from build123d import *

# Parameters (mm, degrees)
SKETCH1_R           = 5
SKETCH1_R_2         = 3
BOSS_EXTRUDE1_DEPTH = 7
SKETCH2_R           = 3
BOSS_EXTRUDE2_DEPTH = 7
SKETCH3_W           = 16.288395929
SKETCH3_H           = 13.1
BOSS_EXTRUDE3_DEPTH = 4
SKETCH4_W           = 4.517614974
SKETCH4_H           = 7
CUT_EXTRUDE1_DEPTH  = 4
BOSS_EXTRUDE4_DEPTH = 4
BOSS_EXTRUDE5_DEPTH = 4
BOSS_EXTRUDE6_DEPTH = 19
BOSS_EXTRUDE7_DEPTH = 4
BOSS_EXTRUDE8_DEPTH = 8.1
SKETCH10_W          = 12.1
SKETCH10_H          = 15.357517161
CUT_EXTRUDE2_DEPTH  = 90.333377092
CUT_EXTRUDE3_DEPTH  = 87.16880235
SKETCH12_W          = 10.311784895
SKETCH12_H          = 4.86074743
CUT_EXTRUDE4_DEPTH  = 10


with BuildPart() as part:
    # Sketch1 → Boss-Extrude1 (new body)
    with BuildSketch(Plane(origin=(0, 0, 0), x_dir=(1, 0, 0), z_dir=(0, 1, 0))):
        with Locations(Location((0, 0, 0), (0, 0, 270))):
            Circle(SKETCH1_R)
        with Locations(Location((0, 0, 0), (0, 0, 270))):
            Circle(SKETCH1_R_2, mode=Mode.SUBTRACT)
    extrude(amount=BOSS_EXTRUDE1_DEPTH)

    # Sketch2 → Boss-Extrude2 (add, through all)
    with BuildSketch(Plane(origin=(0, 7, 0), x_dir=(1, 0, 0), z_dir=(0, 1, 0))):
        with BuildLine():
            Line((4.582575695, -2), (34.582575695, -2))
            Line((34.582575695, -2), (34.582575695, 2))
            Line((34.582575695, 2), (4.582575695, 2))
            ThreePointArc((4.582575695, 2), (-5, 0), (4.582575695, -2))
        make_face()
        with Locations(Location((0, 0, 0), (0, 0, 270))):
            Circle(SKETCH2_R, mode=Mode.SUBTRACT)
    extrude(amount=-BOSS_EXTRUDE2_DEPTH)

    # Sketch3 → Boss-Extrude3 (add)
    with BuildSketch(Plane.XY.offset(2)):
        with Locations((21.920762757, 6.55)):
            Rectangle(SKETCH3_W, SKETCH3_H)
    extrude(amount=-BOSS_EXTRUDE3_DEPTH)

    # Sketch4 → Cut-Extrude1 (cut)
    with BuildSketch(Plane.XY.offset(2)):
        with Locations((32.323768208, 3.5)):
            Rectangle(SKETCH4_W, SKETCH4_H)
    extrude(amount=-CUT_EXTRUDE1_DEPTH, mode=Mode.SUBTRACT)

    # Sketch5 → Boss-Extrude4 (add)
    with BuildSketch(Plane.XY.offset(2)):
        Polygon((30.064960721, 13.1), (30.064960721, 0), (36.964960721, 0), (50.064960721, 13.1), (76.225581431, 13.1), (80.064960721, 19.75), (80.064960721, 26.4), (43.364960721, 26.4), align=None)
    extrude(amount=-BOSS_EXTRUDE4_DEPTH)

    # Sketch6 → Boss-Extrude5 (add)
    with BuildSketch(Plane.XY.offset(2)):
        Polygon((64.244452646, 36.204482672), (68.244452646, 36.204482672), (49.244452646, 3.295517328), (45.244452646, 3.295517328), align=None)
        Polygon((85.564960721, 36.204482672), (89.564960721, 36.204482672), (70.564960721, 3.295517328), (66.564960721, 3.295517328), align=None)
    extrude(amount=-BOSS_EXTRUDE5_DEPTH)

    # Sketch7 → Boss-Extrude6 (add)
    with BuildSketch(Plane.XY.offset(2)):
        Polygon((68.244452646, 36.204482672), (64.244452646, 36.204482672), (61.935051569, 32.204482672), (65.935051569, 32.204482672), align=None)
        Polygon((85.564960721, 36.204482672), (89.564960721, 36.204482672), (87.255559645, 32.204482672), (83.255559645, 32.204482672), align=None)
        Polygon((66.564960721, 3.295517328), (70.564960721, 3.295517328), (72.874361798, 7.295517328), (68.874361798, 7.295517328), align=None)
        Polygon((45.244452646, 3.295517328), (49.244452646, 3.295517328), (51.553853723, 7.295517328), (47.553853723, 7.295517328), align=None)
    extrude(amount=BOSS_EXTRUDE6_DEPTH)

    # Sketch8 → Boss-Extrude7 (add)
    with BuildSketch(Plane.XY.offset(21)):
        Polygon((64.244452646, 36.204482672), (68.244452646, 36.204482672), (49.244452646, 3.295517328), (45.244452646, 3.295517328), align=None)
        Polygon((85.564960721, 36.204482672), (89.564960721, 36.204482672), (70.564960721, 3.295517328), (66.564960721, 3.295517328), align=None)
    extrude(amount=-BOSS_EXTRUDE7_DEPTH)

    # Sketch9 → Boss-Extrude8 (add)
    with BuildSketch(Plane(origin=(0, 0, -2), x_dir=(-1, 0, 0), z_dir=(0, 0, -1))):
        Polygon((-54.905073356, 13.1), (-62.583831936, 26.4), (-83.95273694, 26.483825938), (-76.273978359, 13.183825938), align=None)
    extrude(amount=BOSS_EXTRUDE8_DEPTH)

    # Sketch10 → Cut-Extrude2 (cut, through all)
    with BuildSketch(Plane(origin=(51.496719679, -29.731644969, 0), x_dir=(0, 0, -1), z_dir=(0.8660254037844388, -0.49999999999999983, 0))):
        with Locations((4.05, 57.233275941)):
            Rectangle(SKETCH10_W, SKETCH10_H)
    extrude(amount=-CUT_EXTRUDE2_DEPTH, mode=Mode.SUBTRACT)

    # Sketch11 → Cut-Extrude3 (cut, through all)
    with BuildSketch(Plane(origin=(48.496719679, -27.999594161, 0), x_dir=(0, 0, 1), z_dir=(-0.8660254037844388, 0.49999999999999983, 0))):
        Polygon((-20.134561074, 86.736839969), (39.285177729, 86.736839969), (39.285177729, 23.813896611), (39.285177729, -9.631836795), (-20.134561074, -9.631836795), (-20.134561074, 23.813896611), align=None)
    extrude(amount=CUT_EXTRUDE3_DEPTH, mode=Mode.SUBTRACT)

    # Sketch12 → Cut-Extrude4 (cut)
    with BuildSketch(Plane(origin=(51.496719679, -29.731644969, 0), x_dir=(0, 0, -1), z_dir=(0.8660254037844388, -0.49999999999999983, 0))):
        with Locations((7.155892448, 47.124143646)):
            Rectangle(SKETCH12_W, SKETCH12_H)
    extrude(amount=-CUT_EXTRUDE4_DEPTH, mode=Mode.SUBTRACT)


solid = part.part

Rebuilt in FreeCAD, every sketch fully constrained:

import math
import FreeCAD as App
import Part
import Sketcher

V = App.Vector
Q = App.Units.Quantity


def add_polygon(sketch, points):
    """Adds a closed chain of lines whose ends are joined by coincident constraints."""
    first, n = sketch.GeometryCount, len(points)
    for a, b in zip(points, points[1:] + points[:1]):
        sketch.addGeometry(Part.LineSegment(App.Vector(*a, 0), App.Vector(*b, 0)), False)
    for i in range(n):
        sketch.addConstraint(Sketcher.Constraint("Coincident", first + i, 2, first + (i + 1) % n, 1))

doc = App.newDocument("Part")
body = doc.addObject("PartDesign::Body", "Body")

# Sketch on XZ plane
sketch1 = body.newObject("Sketcher::SketchObject", "Sketch")
sketch1.AttachmentSupport = (doc.getObject("XZ_Plane"), [""])
sketch1.MapMode = "FlatFace"
sketch1.addGeometry([
    Part.Circle(V(0, 0, 0), V(0, 0, 1), 5),
    Part.Circle(V(0, 0, 0), V(0, 0, 1), 3),
], False)
sketch1.addConstraint([
    Sketcher.Constraint("Coincident", 0, 3, -1, 1),
    Sketcher.Constraint("Coincident", 1, 3, -1, 1),
    Sketcher.Constraint("Diameter", 0, Q("10 mm")),
    Sketcher.Constraint("Diameter", 1, Q("6 mm")),
])
pad1 = body.newObject("PartDesign::Pad", "Pad")
pad1.Profile = sketch1
pad1.Length = 7
pad1.Reversed = True

# Sketch on XZ plane
sketch2 = body.newObject("Sketcher::SketchObject", "Sketch001")
sketch2.AttachmentSupport = (doc.getObject("XZ_Plane"), [""])
sketch2.MapMode = "FlatFace"
sketch2.AttachmentOffset = App.Placement(V(0, 0, -7), App.Rotation())
sketch2.addGeometry([
    Part.LineSegment(V(4.6, 2, 0), V(34.6, 2, 0)),  # 0
    Part.LineSegment(V(34.6, 2, 0), V(34.6, -2, 0)),  # 1
    Part.LineSegment(V(34.6, -2, 0), V(4.6, -2, 0)),  # 2
    Part.ArcOfCircle(Part.Circle(V(0, 0, 0), V(0, 0, 1), 5), math.radians(24), math.radians(336)),  # 3
    Part.Circle(V(0, 0, 0), V(0, 0, 1), 3),  # 4
], False)
sketch2.addConstraint([
    Sketcher.Constraint("Coincident", 0, 2, 1, 1),
    Sketcher.Constraint("Coincident", 1, 2, 2, 1),
    Sketcher.Constraint("Coincident", 2, 2, 3, 2),
    Sketcher.Constraint("Coincident", 3, 1, 0, 1),
    Sketcher.Constraint("Horizontal", 0),
    Sketcher.Constraint("Vertical", 1),
    Sketcher.Constraint("Horizontal", 2),
    Sketcher.Constraint("Coincident", 3, 3, -1, 1),
    Sketcher.Constraint("Coincident", 4, 3, -1, 1),
    Sketcher.Constraint("Vertical", 2, 2, 3, 1),
    Sketcher.Constraint("Diameter", 4, Q("6 mm")),
    Sketcher.Constraint("Radius", 3, Q("5 mm")),
    Sketcher.Constraint("DistanceX", 0, 1, 0, 2, Q("30 mm")),
    Sketcher.Constraint("DistanceY", 1, 2, 1, 1, Q("4 mm")),
])
pad2 = body.newObject("PartDesign::Pad", "Pad001")
pad2.Profile = sketch2
pad2.Length = 7

# Sketch on XY plane
sketch3 = body.newObject("Sketcher::SketchObject", "Sketch002")
sketch3.AttachmentSupport = (doc.getObject("XY_Plane"), [""])
sketch3.MapMode = "FlatFace"
sketch3.AttachmentOffset = App.Placement(V(0, 0, 2), App.Rotation())
add_polygon(sketch3, [(14, 13), (14, 0), (30, 0), (30, 13)])  # lines 0-3
sketch3.addConstraint([
    Sketcher.Constraint("Vertical", 0),
    Sketcher.Constraint("Horizontal", 1),
    Sketcher.Constraint("Vertical", 2),
    Sketcher.Constraint("Horizontal", 3),
    Sketcher.Constraint("PointOnObject", 0, 2, -1),
    Sketcher.Constraint("DistanceY", 0, 2, 0, 1, Q("13.1 mm")),
    Sketcher.Constraint("DistanceX", 1, 1, 1, 2, Q("16.288396 mm")),
    Sketcher.Constraint("DistanceX", -1, 1, 1, 2, Q("30.064961 mm")),
])
pad3 = body.newObject("PartDesign::Pad", "Pad002")
pad3.Profile = sketch3
pad3.Length = 4
pad3.Reversed = True

# Sketch on XY plane
sketch4 = body.newObject("Sketcher::SketchObject", "Sketch003")
sketch4.AttachmentSupport = (doc.getObject("XY_Plane"), [""])
sketch4.MapMode = "FlatFace"
sketch4.AttachmentOffset = App.Placement(V(0, 0, 2), App.Rotation())
add_polygon(sketch4, [(30.1, 7), (30.1, 0), (34.6, 0), (34.6, 7)])  # lines 0-3
sketch4.addConstraint([
    Sketcher.Constraint("Vertical", 0),
    Sketcher.Constraint("Horizontal", 1),
    Sketcher.Constraint("Vertical", 2),
    Sketcher.Constraint("Horizontal", 3),
    Sketcher.Constraint("PointOnObject", 0, 2, -1),
    Sketcher.Constraint("DistanceY", 0, 2, 0, 1, Q("7 mm")),
    Sketcher.Constraint("DistanceX", 1, 1, 1, 2, Q("4.517615 mm")),
    Sketcher.Constraint("DistanceX", -1, 1, 0, 2, Q("30.064961 mm")),
])
pocket1 = body.newObject("PartDesign::Pocket", "Pocket")
pocket1.Profile = sketch4
pocket1.Length = 4

# Sketch on XY plane
sketch5 = body.newObject("Sketcher::SketchObject", "Sketch004")
sketch5.AttachmentSupport = (doc.getObject("XY_Plane"), [""])
sketch5.MapMode = "FlatFace"
sketch5.AttachmentOffset = App.Placement(V(0, 0, 2), App.Rotation())
add_polygon(sketch5, [(30, 13), (30, 0), (37, 0), (50, 13), (76, 13), (80, 20), (80, 26), (43, 26)])  # lines 0-7
sketch5.addConstraint([
    Sketcher.Constraint("Vertical", 0),
    Sketcher.Constraint("Horizontal", 1),
    Sketcher.Constraint("Horizontal", 3),
    Sketcher.Constraint("Vertical", 5),
    Sketcher.Constraint("Horizontal", 6),
    Sketcher.Constraint("PointOnObject", 0, 2, -1),
    Sketcher.Constraint("Parallel", 2, 7),
    Sketcher.Constraint("Horizontal", 3, 2, 7, 2),
    Sketcher.Constraint("Angle", 2, Q("45 deg")),
    Sketcher.Constraint("Angle", 4, Q("60 deg")),
    Sketcher.Constraint("DistanceX", 1, 1, 1, 2, Q("6.9 mm")),
    Sketcher.Constraint("DistanceX", 6, 2, 6, 1, Q("36.7 mm")),
    Sketcher.Constraint("DistanceY", 0, 2, 0, 1, Q("13.1 mm")),
    Sketcher.Constraint("DistanceX", 2, 2, 4, 2, Q("30 mm")),
    Sketcher.Constraint("DistanceY", 5, 1, 5, 2, Q("6.65 mm")),
    Sketcher.Constraint("DistanceX", -1, 1, 0, 2, Q("30.064961 mm")),
])
pad4 = body.newObject("PartDesign::Pad", "Pad003")
pad4.Profile = sketch5
pad4.Length = 4
pad4.Reversed = True

# Sketch on XY plane
sketch6 = body.newObject("Sketcher::SketchObject", "Sketch005")
sketch6.AttachmentSupport = (doc.getObject("XY_Plane"), [""])
sketch6.MapMode = "FlatFace"
sketch6.AttachmentOffset = App.Placement(V(0, 0, 2), App.Rotation())
add_polygon(sketch6, [(68.2, 36.2), (64.2, 36.2), (45.2, 3.3), (49.2, 3.3)])  # lines 0-3
add_polygon(sketch6, [(89.6, 36.2), (85.6, 36.2), (66.6, 3.3), (70.6, 3.3)])  # lines 4-7
sketch6.addConstraint([
    Sketcher.Constraint("Horizontal", 0),
    Sketcher.Constraint("Horizontal", 2),
    Sketcher.Constraint("Horizontal", 4),
    Sketcher.Constraint("Horizontal", 6),
    Sketcher.Constraint("Parallel", 1, 3),
    Sketcher.Constraint("Parallel", 3, 5),
    Sketcher.Constraint("Parallel", 5, 7),
    Sketcher.Constraint("Horizontal", 3, 2, 4, 2),
    Sketcher.Constraint("Horizontal", 2, 2, 5, 2),
    Sketcher.Constraint("Equal", 2, 4),
    Sketcher.Constraint("DistanceX", 0, 2, 0, 1, Q("4 mm")),
    Sketcher.Constraint("Angle", 1, Q("-120 deg")),
    Sketcher.Constraint("Distance", 1, Q("38 mm")),
    Sketcher.Constraint("DistanceX", -1, 1, 4, 2, Q("85.564961 mm")),
    Sketcher.Constraint("DistanceX", 3, 2, 4, 2, Q("17.320508 mm")),
    Sketcher.Constraint("DistanceY", -1, 1, 0, 2, Q("36.204483 mm")),
])
pad5 = body.newObject("PartDesign::Pad", "Pad004")
pad5.Profile = sketch6
pad5.Length = 4
pad5.Reversed = True

# Sketch on XY plane
sketch7 = body.newObject("Sketcher::SketchObject", "Sketch006")
sketch7.AttachmentSupport = (doc.getObject("XY_Plane"), [""])
sketch7.MapMode = "FlatFace"
sketch7.AttachmentOffset = App.Placement(V(0, 0, 2), App.Rotation())
add_polygon(sketch7, [(68.2, 36.2), (64.2, 36.2), (61.9, 32.2), (65.9, 32.2)])  # lines 0-3
add_polygon(sketch7, [(89.6, 36.2), (85.6, 36.2), (83.3, 32.2), (87.3, 32.2)])  # lines 4-7
add_polygon(sketch7, [(66.6, 3.3), (70.6, 3.3), (72.9, 7.3), (68.9, 7.3)])  # lines 8-11
add_polygon(sketch7, [(45.2, 3.3), (49.2, 3.3), (51.6, 7.3), (47.6, 7.3)])  # lines 12-15
sketch7.addConstraint([
    Sketcher.Constraint("Horizontal", 0),
    Sketcher.Constraint("Horizontal", 2),
    Sketcher.Constraint("Horizontal", 4),
    Sketcher.Constraint("Horizontal", 6),
    Sketcher.Constraint("Horizontal", 8),
    Sketcher.Constraint("Horizontal", 10),
    Sketcher.Constraint("Horizontal", 12),
    Sketcher.Constraint("Horizontal", 14),
    Sketcher.Constraint("Parallel", 1, 3),
    Sketcher.Constraint("Parallel", 3, 5),
    Sketcher.Constraint("Parallel", 5, 7),
    Sketcher.Constraint("Parallel", 7, 9),
    Sketcher.Constraint("Parallel", 9, 11),
    Sketcher.Constraint("Parallel", 11, 13),
    Sketcher.Constraint("Parallel", 13, 15),
    Sketcher.Constraint("Horizontal", 3, 2, 4, 2),
    Sketcher.Constraint("Horizontal", 2, 2, 5, 2),
    Sketcher.Constraint("Horizontal", 11, 2, 12, 2),
    Sketcher.Constraint("Horizontal", 10, 2, 13, 2),
    Sketcher.Constraint("Equal", 2, 4),
    Sketcher.Constraint("Equal", 6, 8),
    Sketcher.Constraint("Equal", 10, 12),
    Sketcher.Constraint("Equal", 7, 9),
    Sketcher.Constraint("DistanceX", 0, 2, 0, 1, Q("4 mm")),
    Sketcher.Constraint("Angle", 1, Q("-120 deg")),
    Sketcher.Constraint("DistanceY", 1, 2, 0, 2, Q("4 mm")),
    Sketcher.Constraint("DistanceX", 8, 2, 5, 2, Q("12.690599 mm")),
    Sketcher.Constraint("DistanceX", 12, 2, 1, 2, Q("12.690599 mm")),
    Sketcher.Constraint("DistanceX", -1, 1, 1, 2, Q("61.935052 mm")),
    Sketcher.Constraint("DistanceX", -1, 1, 4, 2, Q("85.564961 mm")),
    Sketcher.Constraint("DistanceY", -1, 1, 0, 2, Q("36.204483 mm")),
    Sketcher.Constraint("DistanceY", -1, 1, 8, 2, Q("3.295517 mm")),
])
pad6 = body.newObject("PartDesign::Pad", "Pad005")
pad6.Profile = sketch7
pad6.Length = 19

# Sketch on XY plane
sketch8 = body.newObject("Sketcher::SketchObject", "Sketch007")
sketch8.AttachmentSupport = (doc.getObject("XY_Plane"), [""])
sketch8.MapMode = "FlatFace"
sketch8.AttachmentOffset = App.Placement(V(0, 0, 21), App.Rotation())
add_polygon(sketch8, [(68.2, 36.2), (64.2, 36.2), (45.2, 3.3), (49.2, 3.3)])  # lines 0-3
add_polygon(sketch8, [(89.6, 36.2), (85.6, 36.2), (66.6, 3.3), (70.6, 3.3)])  # lines 4-7
sketch8.addConstraint([
    Sketcher.Constraint("Horizontal", 0),
    Sketcher.Constraint("Horizontal", 2),
    Sketcher.Constraint("Horizontal", 4),
    Sketcher.Constraint("Horizontal", 6),
    Sketcher.Constraint("Parallel", 1, 3),
    Sketcher.Constraint("Parallel", 3, 5),
    Sketcher.Constraint("Parallel", 5, 7),
    Sketcher.Constraint("Horizontal", 3, 2, 4, 2),
    Sketcher.Constraint("Horizontal", 2, 2, 5, 2),
    Sketcher.Constraint("Equal", 2, 4),
    Sketcher.Constraint("DistanceX", 0, 2, 0, 1, Q("4 mm")),
    Sketcher.Constraint("Angle", 1, Q("-120 deg")),
    Sketcher.Constraint("Distance", 1, Q("38 mm")),
    Sketcher.Constraint("DistanceX", -1, 1, 4, 2, Q("85.564961 mm")),
    Sketcher.Constraint("DistanceX", 3, 2, 4, 2, Q("17.320508 mm")),
    Sketcher.Constraint("DistanceY", -1, 1, 0, 2, Q("36.204483 mm")),
])
pad7 = body.newObject("PartDesign::Pad", "Pad006")
pad7.Profile = sketch8
pad7.Length = 4
pad7.Reversed = True

# Sketch on XY plane
sketch9 = body.newObject("Sketcher::SketchObject", "Sketch008")
sketch9.AttachmentSupport = (doc.getObject("XY_Plane"), [""])
sketch9.MapMode = "FlatFace"
sketch9.AttachmentOffset = App.Placement(V(0, 0, -2), App.Rotation())
add_polygon(sketch9, [(55, 13), (63, 26), (84, 26), (76, 13)])  # lines 0-3
sketch9.addConstraint([
    Sketcher.Constraint("Parallel", 0, 2),
    Sketcher.Constraint("Parallel", 1, 3),
    Sketcher.Constraint("Angle", 0, Q("60 deg")),
    Sketcher.Constraint("DistanceY", -1, 1, 0, 2, Q("26.4 mm")),
    Sketcher.Constraint("DistanceY", -1, 1, 3, 2, Q("13.1 mm")),
    Sketcher.Constraint("Distance", 1, Q("21.369069 mm")),
    Sketcher.Constraint("DistanceX", -1, 1, 0, 2, Q("62.583832 mm")),
    Sketcher.Constraint("DistanceY", -1, 1, 1, 2, Q("26.483826 mm")),
])
pad8 = body.newObject("PartDesign::Pad", "Pad007")
pad8.Profile = sketch9
pad8.Length = 8.1
pad8.Reversed = True

# Sketch on an angled plane
sketch10 = body.newObject("Sketcher::SketchObject", "Sketch009")
sketch10.Placement = App.Placement(V(51.49672, -29.731645, 0), App.Rotation(V(0, 0, -1), V(0.5, 0.866025404, 0), V(0.866025404, -0.5, 0), "ZXY"))
add_polygon(sketch10, [(-2, 65), (-2, 50), (10, 50), (10, 65)])  # lines 0-3
sketch10.addConstraint([
    Sketcher.Constraint("Vertical", 0),
    Sketcher.Constraint("Horizontal", 1),
    Sketcher.Constraint("Vertical", 2),
    Sketcher.Constraint("Horizontal", 3),
    Sketcher.Constraint("DistanceX", 1, 1, 1, 2, Q("12.1 mm")),
    Sketcher.Constraint("DistanceX", 0, 2, -1, 1, Q("2 mm")),
    Sketcher.Constraint("DistanceY", 0, 2, 0, 1, Q("15.357517 mm")),
    Sketcher.Constraint("DistanceY", -1, 1, 0, 2, Q("49.554517 mm")),
])
pocket2 = body.newObject("PartDesign::Pocket", "Pocket001")
pocket2.Profile = sketch10
pocket2.Type = "ThroughAll"

# Sketch on an angled plane
sketch11 = body.newObject("Sketcher::SketchObject", "Sketch010")
sketch11.Placement = App.Placement(V(48.49672, -27.999594, 0), App.Rotation(V(0, 0, 1), V(0.5, 0.866025404, 0), V(-0.866025404, 0.5, 0), "ZXY"))
add_polygon(sketch11, [(39, 87), (-20, 87), (-20, -10), (39, -10)])  # lines 0-3
sketch11.addConstraint([
    Sketcher.Constraint("Horizontal", 0),
    Sketcher.Constraint("Vertical", 1),
    Sketcher.Constraint("Horizontal", 2),
    Sketcher.Constraint("Vertical", 3),
    Sketcher.Constraint("DistanceX", 0, 2, 0, 1, Q("59.419739 mm")),
    Sketcher.Constraint("DistanceY", 1, 2, 1, 1, Q("96.368677 mm")),
    Sketcher.Constraint("DistanceX", 0, 2, -1, 1, Q("20.134561 mm")),
    Sketcher.Constraint("DistanceY", -1, 1, 0, 2, Q("86.73684 mm")),
])
pocket3 = body.newObject("PartDesign::Pocket", "Pocket002")
pocket3.Profile = sketch11
pocket3.Type = "ThroughAll"
pocket3.Reversed = True

# Sketch on an angled plane
sketch12 = body.newObject("Sketcher::SketchObject", "Sketch011")
sketch12.Placement = App.Placement(V(51.49672, -29.731645, 0), App.Rotation(V(0, 0, -1), V(0.5, 0.866025404, 0), V(0.866025404, -0.5, 0), "ZXY"))
add_polygon(sketch12, [(2, 49.6), (2, 44.7), (12.3, 44.7), (12.3, 49.6)])  # lines 0-3
sketch12.addConstraint([
    Sketcher.Constraint("Vertical", 0),
    Sketcher.Constraint("Horizontal", 1),
    Sketcher.Constraint("Vertical", 2),
    Sketcher.Constraint("Horizontal", 3),
    Sketcher.Constraint("DistanceX", -1, 1, 0, 2, Q("2 mm")),
    Sketcher.Constraint("DistanceX", 1, 1, 1, 2, Q("10.311785 mm")),
    Sketcher.Constraint("DistanceY", 0, 2, 0, 1, Q("4.860747 mm")),
    Sketcher.Constraint("DistanceY", -1, 1, 0, 2, Q("44.69377 mm")),
])
pocket4 = body.newObject("PartDesign::Pocket", "Pocket003")
pocket4.Profile = sketch12
pocket4.Length = 10

doc.recompute()
